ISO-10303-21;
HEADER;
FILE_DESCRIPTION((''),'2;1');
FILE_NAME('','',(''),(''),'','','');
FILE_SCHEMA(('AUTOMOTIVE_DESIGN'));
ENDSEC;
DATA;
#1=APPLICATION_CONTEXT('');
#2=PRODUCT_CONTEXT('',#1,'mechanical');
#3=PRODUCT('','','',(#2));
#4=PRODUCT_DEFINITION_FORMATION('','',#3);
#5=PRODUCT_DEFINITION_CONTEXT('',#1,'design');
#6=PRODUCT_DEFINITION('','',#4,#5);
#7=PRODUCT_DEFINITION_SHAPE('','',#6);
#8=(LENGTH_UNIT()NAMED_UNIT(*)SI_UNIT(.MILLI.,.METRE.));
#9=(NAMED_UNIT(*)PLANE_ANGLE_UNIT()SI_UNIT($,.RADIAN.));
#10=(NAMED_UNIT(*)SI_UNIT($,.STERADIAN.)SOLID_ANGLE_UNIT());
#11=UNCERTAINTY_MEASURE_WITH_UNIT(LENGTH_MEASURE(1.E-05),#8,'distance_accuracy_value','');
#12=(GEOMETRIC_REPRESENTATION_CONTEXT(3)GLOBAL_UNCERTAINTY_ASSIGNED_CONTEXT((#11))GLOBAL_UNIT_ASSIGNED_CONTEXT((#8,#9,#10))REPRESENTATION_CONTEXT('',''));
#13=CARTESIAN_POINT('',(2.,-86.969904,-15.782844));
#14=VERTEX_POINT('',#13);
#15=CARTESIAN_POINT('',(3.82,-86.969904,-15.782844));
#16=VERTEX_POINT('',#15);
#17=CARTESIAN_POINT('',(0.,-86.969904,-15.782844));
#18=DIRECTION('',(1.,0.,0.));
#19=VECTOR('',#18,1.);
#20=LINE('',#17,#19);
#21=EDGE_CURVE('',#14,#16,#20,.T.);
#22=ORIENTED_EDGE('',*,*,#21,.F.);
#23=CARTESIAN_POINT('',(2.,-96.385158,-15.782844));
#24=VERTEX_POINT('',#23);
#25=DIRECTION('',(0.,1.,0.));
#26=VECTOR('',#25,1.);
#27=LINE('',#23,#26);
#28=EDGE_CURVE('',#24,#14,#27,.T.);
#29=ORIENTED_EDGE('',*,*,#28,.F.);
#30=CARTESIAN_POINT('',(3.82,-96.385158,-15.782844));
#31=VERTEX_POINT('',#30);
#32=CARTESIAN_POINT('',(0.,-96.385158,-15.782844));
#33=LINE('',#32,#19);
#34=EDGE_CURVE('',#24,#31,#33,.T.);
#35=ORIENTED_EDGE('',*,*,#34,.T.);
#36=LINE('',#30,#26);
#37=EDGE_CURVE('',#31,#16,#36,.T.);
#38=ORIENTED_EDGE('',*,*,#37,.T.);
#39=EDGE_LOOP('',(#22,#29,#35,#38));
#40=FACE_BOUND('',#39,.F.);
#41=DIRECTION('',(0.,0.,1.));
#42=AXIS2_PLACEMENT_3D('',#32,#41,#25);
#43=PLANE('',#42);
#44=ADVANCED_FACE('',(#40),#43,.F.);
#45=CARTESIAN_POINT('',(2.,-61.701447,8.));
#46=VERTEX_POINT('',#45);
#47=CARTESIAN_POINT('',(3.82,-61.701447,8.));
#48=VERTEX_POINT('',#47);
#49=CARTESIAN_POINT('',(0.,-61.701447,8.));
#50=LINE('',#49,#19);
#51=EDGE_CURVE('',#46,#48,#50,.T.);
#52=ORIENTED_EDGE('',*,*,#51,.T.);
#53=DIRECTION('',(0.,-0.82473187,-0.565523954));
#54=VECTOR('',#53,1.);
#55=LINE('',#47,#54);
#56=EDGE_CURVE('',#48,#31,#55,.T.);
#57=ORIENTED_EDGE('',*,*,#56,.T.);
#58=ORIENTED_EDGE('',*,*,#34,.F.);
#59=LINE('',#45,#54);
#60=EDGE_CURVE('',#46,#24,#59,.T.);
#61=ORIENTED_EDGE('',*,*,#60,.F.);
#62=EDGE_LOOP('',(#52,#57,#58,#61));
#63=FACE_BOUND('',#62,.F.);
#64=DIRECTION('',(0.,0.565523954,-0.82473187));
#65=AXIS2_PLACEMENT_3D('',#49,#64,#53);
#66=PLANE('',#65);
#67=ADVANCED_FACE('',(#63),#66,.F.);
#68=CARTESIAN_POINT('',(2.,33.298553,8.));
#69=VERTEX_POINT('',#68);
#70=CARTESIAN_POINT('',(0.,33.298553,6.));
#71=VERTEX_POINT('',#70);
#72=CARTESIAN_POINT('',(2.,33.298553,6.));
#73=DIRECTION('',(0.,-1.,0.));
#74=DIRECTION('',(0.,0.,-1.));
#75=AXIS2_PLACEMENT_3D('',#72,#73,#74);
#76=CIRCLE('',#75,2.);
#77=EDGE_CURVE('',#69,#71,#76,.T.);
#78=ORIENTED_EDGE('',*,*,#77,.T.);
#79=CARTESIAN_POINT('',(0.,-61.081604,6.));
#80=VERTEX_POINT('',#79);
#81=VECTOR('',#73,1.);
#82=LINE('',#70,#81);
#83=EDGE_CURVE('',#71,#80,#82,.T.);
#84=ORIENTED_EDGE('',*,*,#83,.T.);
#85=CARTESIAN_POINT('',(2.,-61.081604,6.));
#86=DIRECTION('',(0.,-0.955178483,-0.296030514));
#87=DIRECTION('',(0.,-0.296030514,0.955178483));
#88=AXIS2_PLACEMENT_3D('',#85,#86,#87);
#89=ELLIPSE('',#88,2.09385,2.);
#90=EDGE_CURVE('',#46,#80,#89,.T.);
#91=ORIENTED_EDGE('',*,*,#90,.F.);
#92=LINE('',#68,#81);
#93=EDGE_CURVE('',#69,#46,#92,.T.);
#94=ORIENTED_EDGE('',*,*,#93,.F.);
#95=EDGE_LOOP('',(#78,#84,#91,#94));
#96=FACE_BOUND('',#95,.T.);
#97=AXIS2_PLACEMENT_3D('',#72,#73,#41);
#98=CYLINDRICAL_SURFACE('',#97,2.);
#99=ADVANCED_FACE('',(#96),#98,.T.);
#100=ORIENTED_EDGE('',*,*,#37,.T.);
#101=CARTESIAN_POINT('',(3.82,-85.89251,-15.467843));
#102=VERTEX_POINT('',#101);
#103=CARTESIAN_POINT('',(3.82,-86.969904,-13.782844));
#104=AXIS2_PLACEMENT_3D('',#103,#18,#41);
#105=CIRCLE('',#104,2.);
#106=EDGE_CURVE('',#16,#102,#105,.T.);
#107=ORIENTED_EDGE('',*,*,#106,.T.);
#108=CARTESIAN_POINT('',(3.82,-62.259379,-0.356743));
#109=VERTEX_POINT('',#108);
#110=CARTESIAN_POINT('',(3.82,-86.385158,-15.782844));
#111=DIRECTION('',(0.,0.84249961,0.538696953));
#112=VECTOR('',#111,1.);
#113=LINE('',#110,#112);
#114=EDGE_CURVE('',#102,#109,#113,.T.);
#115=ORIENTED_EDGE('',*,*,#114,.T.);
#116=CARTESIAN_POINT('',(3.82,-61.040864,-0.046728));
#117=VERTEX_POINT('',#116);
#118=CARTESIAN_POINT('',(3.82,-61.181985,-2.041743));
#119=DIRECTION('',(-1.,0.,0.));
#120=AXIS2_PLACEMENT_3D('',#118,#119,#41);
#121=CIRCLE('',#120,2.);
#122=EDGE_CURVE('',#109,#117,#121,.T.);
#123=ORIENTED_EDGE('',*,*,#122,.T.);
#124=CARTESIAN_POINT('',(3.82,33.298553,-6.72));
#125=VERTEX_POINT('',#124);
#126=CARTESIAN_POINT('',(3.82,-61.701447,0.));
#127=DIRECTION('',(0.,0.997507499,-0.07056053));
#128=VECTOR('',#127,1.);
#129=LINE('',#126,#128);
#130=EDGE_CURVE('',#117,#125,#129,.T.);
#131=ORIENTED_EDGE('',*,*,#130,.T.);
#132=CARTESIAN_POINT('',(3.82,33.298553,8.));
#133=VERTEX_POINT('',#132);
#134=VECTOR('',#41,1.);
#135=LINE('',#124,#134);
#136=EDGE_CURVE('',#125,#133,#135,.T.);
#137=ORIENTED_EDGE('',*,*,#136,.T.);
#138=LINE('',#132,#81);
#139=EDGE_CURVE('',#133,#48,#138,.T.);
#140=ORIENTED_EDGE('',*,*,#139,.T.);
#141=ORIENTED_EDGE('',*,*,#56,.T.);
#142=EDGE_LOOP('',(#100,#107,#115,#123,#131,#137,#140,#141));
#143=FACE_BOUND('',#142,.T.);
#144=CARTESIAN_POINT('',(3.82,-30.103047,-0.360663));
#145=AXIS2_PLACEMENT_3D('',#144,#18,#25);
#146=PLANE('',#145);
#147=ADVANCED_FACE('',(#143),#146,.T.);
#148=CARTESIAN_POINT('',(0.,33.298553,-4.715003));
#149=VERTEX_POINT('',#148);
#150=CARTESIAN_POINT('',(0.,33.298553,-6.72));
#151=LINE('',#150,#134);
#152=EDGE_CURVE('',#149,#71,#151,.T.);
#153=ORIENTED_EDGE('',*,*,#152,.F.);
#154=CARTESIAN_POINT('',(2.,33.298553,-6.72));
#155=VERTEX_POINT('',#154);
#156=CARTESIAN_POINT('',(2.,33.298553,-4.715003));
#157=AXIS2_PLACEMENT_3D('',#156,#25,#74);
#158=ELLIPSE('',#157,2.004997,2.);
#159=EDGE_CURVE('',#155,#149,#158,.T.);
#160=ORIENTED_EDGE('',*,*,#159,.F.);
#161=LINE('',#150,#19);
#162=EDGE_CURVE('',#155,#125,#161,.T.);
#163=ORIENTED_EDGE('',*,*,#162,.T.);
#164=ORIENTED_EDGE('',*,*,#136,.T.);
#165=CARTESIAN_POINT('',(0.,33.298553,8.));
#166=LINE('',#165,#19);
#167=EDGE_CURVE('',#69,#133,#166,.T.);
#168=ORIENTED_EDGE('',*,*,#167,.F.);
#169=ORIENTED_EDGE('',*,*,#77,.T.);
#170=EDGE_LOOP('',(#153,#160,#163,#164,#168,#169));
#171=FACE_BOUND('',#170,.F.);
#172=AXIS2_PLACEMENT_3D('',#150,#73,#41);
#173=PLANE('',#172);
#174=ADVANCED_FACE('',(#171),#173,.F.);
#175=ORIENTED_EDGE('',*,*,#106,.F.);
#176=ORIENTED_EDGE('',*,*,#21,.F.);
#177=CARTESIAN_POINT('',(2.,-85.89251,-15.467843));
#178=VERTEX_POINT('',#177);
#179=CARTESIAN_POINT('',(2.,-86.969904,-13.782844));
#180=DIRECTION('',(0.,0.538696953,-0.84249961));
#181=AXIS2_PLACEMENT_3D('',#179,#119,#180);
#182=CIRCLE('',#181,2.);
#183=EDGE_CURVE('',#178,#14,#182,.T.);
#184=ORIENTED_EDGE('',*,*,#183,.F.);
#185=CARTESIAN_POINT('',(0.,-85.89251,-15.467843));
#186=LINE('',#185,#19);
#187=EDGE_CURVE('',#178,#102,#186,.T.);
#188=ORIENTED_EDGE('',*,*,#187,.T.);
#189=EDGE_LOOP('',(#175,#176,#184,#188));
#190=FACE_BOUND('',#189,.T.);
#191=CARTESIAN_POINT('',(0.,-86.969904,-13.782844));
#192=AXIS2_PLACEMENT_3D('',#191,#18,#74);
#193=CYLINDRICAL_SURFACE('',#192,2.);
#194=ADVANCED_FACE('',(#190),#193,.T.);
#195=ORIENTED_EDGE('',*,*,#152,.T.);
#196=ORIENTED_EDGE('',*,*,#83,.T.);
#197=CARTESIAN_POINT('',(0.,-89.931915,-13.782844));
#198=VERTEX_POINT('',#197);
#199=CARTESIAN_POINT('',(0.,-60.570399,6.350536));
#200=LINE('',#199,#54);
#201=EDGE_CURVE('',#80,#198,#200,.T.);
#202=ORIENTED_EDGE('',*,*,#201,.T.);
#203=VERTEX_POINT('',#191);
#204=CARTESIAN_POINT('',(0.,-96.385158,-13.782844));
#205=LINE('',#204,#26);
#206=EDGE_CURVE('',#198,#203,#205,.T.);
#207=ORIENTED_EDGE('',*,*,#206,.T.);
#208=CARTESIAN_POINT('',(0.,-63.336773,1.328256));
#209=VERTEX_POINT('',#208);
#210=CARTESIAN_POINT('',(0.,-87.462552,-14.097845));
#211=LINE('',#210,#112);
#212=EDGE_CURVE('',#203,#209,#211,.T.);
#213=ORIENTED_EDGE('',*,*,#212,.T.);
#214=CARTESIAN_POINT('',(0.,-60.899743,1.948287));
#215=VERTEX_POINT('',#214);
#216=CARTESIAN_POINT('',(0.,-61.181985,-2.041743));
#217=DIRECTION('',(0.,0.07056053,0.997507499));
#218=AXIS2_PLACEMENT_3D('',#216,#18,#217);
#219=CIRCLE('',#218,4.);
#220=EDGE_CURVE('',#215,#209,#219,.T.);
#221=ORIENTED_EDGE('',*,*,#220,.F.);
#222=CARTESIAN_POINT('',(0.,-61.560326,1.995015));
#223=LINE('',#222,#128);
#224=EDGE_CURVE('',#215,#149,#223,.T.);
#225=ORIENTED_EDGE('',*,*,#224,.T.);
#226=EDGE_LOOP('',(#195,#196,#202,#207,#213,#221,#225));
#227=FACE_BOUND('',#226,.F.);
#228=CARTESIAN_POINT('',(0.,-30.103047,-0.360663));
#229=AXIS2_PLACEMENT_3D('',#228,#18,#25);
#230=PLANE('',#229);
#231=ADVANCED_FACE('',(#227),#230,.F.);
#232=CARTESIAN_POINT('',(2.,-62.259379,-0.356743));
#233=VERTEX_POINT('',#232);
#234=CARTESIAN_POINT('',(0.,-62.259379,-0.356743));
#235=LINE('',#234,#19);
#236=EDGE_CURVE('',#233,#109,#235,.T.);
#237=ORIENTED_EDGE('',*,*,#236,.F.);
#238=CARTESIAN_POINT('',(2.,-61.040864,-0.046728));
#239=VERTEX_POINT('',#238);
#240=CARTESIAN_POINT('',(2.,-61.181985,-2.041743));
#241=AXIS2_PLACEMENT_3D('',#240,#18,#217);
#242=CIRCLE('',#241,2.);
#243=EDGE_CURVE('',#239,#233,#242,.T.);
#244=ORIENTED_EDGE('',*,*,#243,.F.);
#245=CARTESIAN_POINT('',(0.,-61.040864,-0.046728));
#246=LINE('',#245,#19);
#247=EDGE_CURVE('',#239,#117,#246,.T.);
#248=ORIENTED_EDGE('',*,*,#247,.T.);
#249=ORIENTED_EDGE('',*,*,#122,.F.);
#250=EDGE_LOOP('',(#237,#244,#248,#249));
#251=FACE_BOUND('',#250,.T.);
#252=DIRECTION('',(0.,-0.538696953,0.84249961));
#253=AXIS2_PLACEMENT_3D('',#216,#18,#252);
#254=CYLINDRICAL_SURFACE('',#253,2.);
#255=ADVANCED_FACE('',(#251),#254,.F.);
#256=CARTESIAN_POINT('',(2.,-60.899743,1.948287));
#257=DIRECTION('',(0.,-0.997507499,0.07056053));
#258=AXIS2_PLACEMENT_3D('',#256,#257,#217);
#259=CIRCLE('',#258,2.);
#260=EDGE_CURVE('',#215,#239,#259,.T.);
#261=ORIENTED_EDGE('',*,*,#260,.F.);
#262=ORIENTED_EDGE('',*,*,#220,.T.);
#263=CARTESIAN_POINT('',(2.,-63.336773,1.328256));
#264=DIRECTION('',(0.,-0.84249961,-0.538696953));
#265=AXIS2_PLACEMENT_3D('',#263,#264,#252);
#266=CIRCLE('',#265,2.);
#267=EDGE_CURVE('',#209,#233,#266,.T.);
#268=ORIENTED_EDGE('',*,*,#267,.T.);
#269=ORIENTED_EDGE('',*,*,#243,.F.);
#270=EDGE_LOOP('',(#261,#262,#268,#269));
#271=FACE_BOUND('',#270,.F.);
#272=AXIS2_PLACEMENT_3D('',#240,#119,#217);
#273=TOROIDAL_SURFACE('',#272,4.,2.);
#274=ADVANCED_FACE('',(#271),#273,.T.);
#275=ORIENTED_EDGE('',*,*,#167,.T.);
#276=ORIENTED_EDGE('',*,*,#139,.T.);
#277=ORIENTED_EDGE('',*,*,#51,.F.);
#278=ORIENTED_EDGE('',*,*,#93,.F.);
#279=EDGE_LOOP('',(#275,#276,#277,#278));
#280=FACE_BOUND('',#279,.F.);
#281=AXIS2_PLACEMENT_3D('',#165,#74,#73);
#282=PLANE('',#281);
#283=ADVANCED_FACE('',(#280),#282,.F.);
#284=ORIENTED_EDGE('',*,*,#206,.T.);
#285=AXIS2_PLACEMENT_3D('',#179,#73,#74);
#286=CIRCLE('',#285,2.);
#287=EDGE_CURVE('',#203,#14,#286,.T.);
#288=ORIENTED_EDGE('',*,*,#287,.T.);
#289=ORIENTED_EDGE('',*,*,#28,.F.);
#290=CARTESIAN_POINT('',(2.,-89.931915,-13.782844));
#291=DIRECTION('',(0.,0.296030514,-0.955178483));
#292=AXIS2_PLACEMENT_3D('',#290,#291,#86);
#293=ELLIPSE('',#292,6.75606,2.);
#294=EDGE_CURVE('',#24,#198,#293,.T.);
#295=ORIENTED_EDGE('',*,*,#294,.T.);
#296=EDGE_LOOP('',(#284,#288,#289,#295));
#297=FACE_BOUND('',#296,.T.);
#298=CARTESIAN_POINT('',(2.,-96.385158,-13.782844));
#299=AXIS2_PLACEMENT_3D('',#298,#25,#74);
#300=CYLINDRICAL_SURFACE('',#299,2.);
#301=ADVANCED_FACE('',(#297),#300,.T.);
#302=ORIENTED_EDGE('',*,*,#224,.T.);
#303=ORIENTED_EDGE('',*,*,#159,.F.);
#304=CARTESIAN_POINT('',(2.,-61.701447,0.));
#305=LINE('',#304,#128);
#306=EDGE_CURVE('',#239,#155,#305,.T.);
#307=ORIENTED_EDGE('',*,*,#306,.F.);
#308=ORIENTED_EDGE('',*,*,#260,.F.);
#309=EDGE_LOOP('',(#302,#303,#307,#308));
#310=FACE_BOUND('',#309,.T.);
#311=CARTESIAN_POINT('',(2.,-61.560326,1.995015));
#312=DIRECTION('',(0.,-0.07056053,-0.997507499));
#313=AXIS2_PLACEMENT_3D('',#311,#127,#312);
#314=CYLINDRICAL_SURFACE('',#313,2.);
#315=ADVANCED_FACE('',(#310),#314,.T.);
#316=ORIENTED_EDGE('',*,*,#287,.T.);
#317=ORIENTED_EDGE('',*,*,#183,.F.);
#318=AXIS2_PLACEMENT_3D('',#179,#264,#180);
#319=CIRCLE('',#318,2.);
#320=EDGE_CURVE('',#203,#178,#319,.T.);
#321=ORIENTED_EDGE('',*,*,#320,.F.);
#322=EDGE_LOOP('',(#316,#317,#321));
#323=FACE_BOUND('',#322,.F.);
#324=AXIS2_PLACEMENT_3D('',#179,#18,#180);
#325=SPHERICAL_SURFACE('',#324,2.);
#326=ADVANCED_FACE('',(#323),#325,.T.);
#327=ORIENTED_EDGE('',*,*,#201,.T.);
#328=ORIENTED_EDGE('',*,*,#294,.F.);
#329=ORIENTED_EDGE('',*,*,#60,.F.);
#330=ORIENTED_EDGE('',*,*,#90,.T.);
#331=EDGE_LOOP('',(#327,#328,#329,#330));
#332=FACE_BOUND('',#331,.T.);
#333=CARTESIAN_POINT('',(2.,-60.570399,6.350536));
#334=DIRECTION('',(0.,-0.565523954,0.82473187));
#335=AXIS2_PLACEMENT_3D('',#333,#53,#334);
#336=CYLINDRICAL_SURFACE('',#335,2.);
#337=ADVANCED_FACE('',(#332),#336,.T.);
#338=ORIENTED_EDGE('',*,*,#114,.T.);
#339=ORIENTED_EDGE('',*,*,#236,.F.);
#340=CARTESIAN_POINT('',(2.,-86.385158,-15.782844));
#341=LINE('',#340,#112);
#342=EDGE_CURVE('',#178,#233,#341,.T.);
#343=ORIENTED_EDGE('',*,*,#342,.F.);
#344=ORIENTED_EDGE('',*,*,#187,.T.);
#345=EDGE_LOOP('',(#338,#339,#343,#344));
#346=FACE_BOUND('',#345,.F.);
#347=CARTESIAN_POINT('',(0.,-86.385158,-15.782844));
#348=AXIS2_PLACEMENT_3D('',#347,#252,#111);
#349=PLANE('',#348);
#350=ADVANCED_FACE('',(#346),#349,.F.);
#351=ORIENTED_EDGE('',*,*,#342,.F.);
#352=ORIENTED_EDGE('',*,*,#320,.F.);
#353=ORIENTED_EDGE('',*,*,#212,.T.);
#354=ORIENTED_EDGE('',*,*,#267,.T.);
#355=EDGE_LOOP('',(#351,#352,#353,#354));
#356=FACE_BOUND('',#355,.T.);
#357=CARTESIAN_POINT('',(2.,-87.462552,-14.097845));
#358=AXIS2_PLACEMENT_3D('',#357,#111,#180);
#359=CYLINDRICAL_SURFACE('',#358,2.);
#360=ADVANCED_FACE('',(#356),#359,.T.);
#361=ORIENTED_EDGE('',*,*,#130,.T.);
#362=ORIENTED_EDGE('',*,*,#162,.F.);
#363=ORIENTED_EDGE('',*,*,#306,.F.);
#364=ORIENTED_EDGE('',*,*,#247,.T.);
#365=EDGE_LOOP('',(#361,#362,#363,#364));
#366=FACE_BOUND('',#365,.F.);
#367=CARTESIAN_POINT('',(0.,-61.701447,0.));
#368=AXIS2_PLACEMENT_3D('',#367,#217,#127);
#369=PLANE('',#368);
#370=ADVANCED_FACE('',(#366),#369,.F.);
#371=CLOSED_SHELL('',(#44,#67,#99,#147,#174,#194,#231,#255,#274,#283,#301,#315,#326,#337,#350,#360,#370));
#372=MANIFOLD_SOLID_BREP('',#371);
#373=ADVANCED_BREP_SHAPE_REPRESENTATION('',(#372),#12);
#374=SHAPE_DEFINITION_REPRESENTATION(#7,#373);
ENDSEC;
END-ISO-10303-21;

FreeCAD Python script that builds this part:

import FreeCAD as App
import Part
import Sketcher
Q = App.Units.Quantity


def edges_at(feature, points):
    """Names of the edges that pass closest to the given points."""
    edges = feature.Shape.Edges
    near = lambda p: min(range(len(edges)), key=lambda i: edges[i].distToShape(Part.Vertex(*p))[0])
    return sorted({f"Edge{near(p) + 1}" for p in points})

doc = App.newDocument("Part")
body = doc.addObject("PartDesign::Body", "Body")

# Sketch on YZ plane
sketch1 = body.newObject("Sketcher::SketchObject", "Sketch")
sketch1.AttachmentSupport = (doc.getObject("YZ_Plane"), [""])
sketch1.MapMode = "FlatFace"
sketch1.addGeometry([
    Part.LineSegment(App.Vector(33, -7, 0), App.Vector(33, 8, 0)),  # 0
    Part.LineSegment(App.Vector(33, 8, 0), App.Vector(-62, 8, 0)),  # 1
    Part.LineSegment(App.Vector(-62, 8, 0), App.Vector(-96, -16, 0)),  # 2
    Part.LineSegment(App.Vector(-96, -16, 0), App.Vector(-86, -16, 0)),  # 3
    Part.LineSegment(App.Vector(-86, -16, 0), App.Vector(-62, 0, 0)),  # 4
    Part.LineSegment(App.Vector(-62, 0, 0), App.Vector(33, -7, 0)),  # 5
], False)
sketch1.addConstraint([
    Sketcher.Constraint("Coincident", 0, 2, 1, 1),
    Sketcher.Constraint("Coincident", 1, 2, 2, 1),
    Sketcher.Constraint("Coincident", 2, 2, 3, 1),
    Sketcher.Constraint("Coincident", 3, 2, 4, 1),
    Sketcher.Constraint("Coincident", 4, 2, 5, 1),
    Sketcher.Constraint("Coincident", 5, 2, 0, 1),
    Sketcher.Constraint("Vertical", 0),
    Sketcher.Constraint("Horizontal", 1),
    Sketcher.Constraint("Horizontal", 3),
    Sketcher.Constraint("PointOnObject", 4, 2, -1),
    Sketcher.Constraint("Vertical", 1, 2, 4, 2),
    Sketcher.Constraint("DistanceX", 1, 2, 1, 1, Q("95 mm")),
    Sketcher.Constraint("DistanceX", 3, 1, 3, 2, Q("10 mm")),
    Sketcher.Constraint("DistanceY", -1, 1, 0, 2, Q("8 mm")),
    Sketcher.Constraint("DistanceY", 0, 1, 0, 2, Q("14.72 mm")),
    Sketcher.Constraint("Distance", 2, Q("42.05453 mm")),
    Sketcher.Constraint("DistanceX", 2, 2, -1, 1, Q("96.385158 mm")),
    Sketcher.Constraint("DistanceX", 2, 2, 1, 2, Q("34.683711 mm")),
])
pad1 = body.newObject("PartDesign::Pad", "Pad")
pad1.Profile = sketch1
pad1.Length = 3.82
doc.recompute()

fillet = body.newObject("PartDesign::Fillet", "Fillet")
fillet.Base = (pad1, edges_at(pad1, [
    (0, -14.201, 8),
    (0, -14.201, -3.36),
    (0, -79.043, -3.891),
    (0, -74.043, -7.891),
    (0, -91.385, -15.783),
    (1.91, -61.701, 0),
    (1.91, -86.385, -15.783),
]))
fillet.Radius = 2

doc.recompute()
